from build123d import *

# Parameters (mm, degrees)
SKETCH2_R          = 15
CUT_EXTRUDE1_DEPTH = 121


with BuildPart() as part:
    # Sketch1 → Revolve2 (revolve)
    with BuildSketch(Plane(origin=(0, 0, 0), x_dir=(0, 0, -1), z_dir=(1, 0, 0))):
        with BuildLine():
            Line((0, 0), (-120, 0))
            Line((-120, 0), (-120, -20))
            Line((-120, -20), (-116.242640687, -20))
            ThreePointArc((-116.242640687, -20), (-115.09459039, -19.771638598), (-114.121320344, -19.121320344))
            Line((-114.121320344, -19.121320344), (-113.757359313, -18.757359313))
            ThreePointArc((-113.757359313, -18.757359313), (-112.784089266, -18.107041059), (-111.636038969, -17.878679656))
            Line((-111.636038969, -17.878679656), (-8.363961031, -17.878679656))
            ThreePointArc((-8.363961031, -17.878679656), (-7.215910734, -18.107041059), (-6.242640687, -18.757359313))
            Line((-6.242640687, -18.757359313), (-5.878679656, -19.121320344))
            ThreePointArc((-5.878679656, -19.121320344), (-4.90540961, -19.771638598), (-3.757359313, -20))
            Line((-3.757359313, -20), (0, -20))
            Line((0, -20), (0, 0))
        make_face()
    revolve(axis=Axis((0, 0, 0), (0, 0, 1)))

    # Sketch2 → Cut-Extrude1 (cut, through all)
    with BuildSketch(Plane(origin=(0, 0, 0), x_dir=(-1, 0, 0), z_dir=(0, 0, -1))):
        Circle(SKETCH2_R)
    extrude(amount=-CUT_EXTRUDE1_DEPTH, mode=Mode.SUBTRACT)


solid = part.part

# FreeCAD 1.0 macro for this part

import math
import FreeCAD as App
import Part
import Sketcher
Q = App.Units.Quantity

doc = App.newDocument("Part")
body = doc.addObject("PartDesign::Body", "Body")

# Sketch on YZ plane
sketch1 = body.newObject("Sketcher::SketchObject", "Sketch")
sketch1.AttachmentSupport = (doc.getObject("YZ_Plane"), [""])
sketch1.MapMode = "FlatFace"
sketch1.addGeometry([
    Part.LineSegment(App.Vector(0, 0, 0), App.Vector(0, 120, 0)),  # 0
    Part.LineSegment(App.Vector(0, 120, 0), App.Vector(-20, 120, 0)),  # 1
    Part.LineSegment(App.Vector(-20, 120, 0), App.Vector(-20, 116.242641, 0)),  # 2
    Part.ArcOfCircle(Part.Circle(App.Vector(-17, 116.242641, 0), App.Vector(0, 0, 1), 3), math.radians(180), math.radians(225)),  # 3
    Part.LineSegment(App.Vector(-19.12132, 114.12132, 0), App.Vector(-18.757359, 113.757359, 0)),  # 4
    Part.ArcOfCircle(Part.Circle(App.Vector(-20.87868, 111.636039, 0), App.Vector(0, 0, 1), 3), math.radians(0), math.radians(45)),  # 5
    Part.LineSegment(App.Vector(-17.87868, 111.636039, 0), App.Vector(-17.87868, 8.363961, 0)),  # 6
    Part.ArcOfCircle(Part.Circle(App.Vector(-20.87868, 8.363961, 0), App.Vector(0, 0, 1), 3), math.radians(-45), math.radians(0)),  # 7
    Part.LineSegment(App.Vector(-18.757359, 6.242641, 0), App.Vector(-19.12132, 5.87868, 0)),  # 8
    Part.ArcOfCircle(Part.Circle(App.Vector(-17, 3.757359, 0), App.Vector(0, 0, 1), 3), math.radians(135), math.radians(180)),  # 9
    Part.LineSegment(App.Vector(-20, 3.757359, 0), App.Vector(-20, 0, 0)),  # 10
    Part.LineSegment(App.Vector(-20, 0, 0), App.Vector(0, 0, 0)),  # 11
], False)
sketch1.addConstraint([
    Sketcher.Constraint("Coincident", 0, 2, 1, 1),
    Sketcher.Constraint("Coincident", 1, 2, 2, 1),
    Sketcher.Constraint("Tangent", 2, 2, 3, 1),
    Sketcher.Constraint("Tangent", 3, 2, 4, 1),
    Sketcher.Constraint("Tangent", 4, 2, 5, 2),
    Sketcher.Constraint("Tangent", 5, 1, 6, 1),
    Sketcher.Constraint("Tangent", 6, 2, 7, 2),
    Sketcher.Constraint("Tangent", 7, 1, 8, 1),
    Sketcher.Constraint("Tangent", 8, 2, 9, 1),
    Sketcher.Constraint("Tangent", 9, 2, 10, 1),
    Sketcher.Constraint("Coincident", 10, 2, 11, 1),
    Sketcher.Constraint("Coincident", 11, 2, 0, 1),
    Sketcher.Constraint("Vertical", 0),
    Sketcher.Constraint("Horizontal", 1),
    Sketcher.Constraint("Vertical", 2),
    Sketcher.Constraint("Vertical", 6),
    Sketcher.Constraint("Vertical", 10),
    Sketcher.Constraint("Horizontal", 11),
    Sketcher.Constraint("Coincident", 11, 2, -1, 1),
    Sketcher.Constraint("Equal", 3, 5),
    Sketcher.Constraint("Equal", 5, 7),
    Sketcher.Constraint("Equal", 7, 9),
    Sketcher.Constraint("Perpendicular", 4, 8),
    Sketcher.Constraint("Vertical", 3, 3, 9, 3),
    Sketcher.Constraint("Vertical", 4, 2, 7, 1),
    Sketcher.Constraint("Equal", 2, 10),
    Sketcher.Constraint("Radius", 3, Q("3 mm")),
    Sketcher.Constraint("DistanceX", 1, 2, 1, 1, Q("20 mm")),
    Sketcher.Constraint("DistanceY", 0, 1, 0, 2, Q("120 mm")),
    Sketcher.Constraint("DistanceY", 2, 2, 2, 1, Q("3.757359 mm")),
    Sketcher.Constraint("DistanceY", 5, 3, 3, 3, Q("4.606602 mm")),
])
revolution = body.newObject("PartDesign::Revolution", "Revolution")
revolution.Profile = sketch1
revolution.ReferenceAxis = (sketch1, ["V_Axis"])
revolution.Angle = 360

# Sketch on XY plane
sketch2 = body.newObject("Sketcher::SketchObject", "Sketch001")
sketch2.AttachmentSupport = (doc.getObject("XY_Plane"), [""])
sketch2.MapMode = "FlatFace"
sketch2.addGeometry(Part.Circle(App.Vector(0, 0, 0), App.Vector(0, 0, 1), 15), False)
sketch2.addConstraint([
    Sketcher.Constraint("Coincident", 0, 3, -1, 1),
    Sketcher.Constraint("Diameter", 0, Q("30 mm")),
])
pocket1 = body.newObject("PartDesign::Pocket", "Pocket")
pocket1.Profile = sketch2
pocket1.Type = "ThroughAll"
pocket1.Reversed = True

doc.recompute()
